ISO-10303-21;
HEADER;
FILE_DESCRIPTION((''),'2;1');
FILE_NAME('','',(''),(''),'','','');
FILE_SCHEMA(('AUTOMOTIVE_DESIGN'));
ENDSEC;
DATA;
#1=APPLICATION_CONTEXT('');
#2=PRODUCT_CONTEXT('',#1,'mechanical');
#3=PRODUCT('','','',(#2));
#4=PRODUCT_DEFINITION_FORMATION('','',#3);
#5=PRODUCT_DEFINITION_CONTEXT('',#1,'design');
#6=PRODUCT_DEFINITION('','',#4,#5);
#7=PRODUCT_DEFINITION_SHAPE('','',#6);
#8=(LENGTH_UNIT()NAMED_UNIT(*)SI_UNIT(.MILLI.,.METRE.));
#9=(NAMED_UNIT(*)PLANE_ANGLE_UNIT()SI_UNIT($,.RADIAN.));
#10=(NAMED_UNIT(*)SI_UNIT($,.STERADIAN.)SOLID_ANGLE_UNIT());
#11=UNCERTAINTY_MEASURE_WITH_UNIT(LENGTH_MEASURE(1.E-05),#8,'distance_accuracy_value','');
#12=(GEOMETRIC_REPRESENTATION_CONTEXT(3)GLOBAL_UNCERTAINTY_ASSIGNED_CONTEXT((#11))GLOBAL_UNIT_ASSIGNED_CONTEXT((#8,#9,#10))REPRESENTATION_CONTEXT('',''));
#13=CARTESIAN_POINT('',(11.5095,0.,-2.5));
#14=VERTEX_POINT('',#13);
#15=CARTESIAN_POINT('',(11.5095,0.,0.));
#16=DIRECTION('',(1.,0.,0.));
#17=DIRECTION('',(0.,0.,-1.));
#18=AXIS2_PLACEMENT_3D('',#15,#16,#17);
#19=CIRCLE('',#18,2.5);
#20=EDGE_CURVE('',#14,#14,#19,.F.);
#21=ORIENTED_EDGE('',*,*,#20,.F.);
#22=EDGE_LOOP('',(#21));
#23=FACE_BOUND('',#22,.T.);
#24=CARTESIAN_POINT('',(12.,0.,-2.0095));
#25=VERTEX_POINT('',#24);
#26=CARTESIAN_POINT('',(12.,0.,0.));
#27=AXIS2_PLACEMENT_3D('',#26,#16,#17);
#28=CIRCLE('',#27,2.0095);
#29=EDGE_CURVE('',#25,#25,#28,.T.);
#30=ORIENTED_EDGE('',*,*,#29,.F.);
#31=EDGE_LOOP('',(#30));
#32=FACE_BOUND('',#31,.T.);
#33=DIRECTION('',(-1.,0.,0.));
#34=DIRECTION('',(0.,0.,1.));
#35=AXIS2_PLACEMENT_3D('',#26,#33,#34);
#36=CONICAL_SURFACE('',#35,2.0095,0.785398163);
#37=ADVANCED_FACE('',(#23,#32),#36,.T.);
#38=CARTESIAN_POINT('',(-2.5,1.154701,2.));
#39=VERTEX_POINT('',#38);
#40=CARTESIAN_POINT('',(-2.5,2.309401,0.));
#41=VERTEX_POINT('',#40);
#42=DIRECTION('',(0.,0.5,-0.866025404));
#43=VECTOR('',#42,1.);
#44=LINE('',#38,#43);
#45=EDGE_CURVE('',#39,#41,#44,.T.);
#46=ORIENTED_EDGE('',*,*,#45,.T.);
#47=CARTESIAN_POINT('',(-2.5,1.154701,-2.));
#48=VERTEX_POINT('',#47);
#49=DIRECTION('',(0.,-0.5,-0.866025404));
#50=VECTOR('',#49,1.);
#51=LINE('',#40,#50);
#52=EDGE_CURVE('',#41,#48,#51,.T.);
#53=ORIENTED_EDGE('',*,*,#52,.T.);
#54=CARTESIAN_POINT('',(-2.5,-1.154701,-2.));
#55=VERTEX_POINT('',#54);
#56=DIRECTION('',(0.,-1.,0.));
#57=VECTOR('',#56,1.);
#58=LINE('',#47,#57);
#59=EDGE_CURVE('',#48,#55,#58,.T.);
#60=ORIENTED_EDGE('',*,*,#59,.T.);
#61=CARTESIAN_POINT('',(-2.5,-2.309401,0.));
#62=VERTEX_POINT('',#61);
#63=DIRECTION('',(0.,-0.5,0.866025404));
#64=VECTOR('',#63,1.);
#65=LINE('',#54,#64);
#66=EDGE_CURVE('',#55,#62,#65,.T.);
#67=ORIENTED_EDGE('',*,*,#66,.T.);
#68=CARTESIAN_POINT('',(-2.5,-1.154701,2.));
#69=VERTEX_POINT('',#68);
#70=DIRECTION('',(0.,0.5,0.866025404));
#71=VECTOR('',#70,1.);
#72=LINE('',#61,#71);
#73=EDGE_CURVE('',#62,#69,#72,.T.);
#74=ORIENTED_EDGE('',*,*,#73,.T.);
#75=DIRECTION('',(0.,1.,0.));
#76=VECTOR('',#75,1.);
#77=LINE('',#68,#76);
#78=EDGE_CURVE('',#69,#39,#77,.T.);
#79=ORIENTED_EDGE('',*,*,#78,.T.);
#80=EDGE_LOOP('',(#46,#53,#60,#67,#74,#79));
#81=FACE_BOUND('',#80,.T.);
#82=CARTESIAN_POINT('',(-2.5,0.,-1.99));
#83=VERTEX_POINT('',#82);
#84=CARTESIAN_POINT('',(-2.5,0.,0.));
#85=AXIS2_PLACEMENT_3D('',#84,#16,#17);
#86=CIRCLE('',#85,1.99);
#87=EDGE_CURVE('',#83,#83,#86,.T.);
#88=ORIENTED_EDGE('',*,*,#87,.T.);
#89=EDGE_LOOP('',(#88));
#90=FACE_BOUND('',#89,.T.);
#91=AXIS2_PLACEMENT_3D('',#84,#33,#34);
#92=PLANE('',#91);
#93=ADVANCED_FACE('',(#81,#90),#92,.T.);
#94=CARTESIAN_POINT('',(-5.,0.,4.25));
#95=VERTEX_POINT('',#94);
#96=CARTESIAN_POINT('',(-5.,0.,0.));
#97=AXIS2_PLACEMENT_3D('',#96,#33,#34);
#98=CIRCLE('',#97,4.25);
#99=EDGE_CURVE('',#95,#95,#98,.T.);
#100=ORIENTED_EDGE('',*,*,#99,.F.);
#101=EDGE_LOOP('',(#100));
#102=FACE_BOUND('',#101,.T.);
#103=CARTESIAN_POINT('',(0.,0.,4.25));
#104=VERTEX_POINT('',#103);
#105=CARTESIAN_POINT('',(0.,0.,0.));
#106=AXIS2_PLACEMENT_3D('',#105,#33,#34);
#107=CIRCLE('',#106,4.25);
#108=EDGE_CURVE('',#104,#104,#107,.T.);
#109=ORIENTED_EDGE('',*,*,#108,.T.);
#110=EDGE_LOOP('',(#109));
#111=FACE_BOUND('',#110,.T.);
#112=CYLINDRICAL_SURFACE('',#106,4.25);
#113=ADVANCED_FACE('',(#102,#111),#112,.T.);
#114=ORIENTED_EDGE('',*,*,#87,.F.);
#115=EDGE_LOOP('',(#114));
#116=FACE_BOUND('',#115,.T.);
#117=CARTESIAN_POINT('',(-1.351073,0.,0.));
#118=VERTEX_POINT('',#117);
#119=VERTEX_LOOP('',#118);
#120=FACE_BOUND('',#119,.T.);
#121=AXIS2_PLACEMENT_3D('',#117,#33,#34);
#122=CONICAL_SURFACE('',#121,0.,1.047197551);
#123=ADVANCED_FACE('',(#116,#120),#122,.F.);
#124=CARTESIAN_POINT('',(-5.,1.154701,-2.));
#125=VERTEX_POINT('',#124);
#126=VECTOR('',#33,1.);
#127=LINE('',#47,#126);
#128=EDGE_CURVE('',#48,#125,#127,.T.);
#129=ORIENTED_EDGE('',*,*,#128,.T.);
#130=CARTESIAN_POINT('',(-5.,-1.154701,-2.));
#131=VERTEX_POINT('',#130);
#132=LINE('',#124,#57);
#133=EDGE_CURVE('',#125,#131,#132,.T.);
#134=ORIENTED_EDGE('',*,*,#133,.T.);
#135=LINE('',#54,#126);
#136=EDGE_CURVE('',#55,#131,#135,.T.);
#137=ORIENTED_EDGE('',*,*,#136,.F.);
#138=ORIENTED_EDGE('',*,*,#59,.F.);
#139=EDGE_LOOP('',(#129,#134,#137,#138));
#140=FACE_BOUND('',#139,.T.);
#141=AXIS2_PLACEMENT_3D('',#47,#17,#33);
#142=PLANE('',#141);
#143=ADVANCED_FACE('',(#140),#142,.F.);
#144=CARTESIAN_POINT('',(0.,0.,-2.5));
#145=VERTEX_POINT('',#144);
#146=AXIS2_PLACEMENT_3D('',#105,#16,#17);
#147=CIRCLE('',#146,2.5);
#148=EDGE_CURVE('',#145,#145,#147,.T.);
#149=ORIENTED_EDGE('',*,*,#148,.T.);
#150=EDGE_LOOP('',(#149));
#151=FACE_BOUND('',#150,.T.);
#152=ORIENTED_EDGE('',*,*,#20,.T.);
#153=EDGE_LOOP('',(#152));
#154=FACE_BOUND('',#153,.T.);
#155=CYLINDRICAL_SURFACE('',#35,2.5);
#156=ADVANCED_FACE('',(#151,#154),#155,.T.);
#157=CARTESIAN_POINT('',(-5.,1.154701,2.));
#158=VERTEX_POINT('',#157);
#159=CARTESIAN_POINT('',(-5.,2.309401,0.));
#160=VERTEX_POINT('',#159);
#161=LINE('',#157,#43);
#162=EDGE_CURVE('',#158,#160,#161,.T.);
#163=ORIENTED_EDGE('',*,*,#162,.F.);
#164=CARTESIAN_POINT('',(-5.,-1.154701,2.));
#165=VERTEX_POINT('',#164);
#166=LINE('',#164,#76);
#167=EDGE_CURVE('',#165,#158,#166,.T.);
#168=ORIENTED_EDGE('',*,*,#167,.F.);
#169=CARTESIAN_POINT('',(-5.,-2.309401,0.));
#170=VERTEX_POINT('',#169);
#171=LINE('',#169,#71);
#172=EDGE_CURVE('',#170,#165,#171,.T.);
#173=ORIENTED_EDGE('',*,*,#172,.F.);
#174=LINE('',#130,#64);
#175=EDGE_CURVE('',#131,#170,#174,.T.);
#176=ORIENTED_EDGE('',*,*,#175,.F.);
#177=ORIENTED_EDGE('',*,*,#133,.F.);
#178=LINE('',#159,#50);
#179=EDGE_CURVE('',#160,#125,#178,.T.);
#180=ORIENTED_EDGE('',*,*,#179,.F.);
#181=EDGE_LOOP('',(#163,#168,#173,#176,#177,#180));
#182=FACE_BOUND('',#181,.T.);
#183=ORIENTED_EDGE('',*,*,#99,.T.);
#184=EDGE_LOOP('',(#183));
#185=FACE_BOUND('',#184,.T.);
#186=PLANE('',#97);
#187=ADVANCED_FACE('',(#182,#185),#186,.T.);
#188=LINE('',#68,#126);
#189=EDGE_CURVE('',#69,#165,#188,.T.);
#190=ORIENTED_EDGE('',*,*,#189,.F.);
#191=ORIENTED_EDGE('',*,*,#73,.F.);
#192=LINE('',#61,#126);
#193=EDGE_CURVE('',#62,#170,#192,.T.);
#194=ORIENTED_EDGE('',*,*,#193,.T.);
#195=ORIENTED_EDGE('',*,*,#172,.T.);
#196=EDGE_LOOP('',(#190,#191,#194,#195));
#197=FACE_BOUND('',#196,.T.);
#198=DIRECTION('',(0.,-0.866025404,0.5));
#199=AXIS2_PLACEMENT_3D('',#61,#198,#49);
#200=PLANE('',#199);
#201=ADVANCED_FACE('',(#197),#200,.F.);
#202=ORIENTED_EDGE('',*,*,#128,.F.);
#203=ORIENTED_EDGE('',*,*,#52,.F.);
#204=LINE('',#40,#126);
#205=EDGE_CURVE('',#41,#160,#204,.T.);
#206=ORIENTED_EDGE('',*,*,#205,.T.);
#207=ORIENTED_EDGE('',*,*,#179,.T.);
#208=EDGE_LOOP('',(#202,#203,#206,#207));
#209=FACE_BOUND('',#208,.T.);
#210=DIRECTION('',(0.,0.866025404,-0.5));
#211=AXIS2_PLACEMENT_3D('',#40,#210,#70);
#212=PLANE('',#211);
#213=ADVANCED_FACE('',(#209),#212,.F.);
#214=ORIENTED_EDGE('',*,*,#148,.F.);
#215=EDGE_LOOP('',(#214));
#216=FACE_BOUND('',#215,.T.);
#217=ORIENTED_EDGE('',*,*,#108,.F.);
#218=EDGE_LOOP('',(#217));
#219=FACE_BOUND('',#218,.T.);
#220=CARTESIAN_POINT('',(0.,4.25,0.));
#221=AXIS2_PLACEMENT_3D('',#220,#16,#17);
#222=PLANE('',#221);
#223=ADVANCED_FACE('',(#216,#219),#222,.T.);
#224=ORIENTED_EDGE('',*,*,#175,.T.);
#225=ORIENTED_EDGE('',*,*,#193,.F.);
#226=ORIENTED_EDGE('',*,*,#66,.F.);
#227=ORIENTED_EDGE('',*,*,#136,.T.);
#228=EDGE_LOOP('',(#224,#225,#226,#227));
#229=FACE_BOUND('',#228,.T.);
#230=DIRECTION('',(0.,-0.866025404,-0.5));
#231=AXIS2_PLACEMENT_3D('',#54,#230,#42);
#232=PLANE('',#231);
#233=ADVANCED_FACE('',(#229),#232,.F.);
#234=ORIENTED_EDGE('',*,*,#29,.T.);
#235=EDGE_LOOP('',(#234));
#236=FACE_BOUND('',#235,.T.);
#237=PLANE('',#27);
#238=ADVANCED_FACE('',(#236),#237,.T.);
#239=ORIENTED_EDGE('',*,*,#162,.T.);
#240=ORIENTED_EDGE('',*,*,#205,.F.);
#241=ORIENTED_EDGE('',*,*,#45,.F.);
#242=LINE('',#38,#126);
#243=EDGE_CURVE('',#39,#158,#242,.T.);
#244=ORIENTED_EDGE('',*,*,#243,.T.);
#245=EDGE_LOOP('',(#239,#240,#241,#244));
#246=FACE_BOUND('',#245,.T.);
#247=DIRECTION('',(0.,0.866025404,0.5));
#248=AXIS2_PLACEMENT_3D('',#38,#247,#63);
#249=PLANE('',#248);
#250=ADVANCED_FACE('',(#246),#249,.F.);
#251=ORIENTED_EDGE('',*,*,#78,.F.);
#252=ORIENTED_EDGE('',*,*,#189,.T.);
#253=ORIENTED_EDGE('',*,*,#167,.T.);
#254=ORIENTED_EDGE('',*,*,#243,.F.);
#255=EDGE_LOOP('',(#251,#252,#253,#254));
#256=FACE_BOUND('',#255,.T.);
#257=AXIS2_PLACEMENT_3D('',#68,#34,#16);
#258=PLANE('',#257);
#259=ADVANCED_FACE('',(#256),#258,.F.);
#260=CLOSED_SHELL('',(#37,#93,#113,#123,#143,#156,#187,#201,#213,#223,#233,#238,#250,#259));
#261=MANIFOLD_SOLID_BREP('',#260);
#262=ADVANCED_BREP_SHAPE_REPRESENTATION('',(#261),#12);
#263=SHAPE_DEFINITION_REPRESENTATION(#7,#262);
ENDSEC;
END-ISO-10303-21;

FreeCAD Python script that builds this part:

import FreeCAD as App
import Part
import Sketcher
from FreeCAD import Vector
Q = App.Units.Quantity


def edges_at(feature, points):
    """Names of the edges that pass closest to the given points."""
    edges = feature.Shape.Edges
    near = lambda p: min(range(len(edges)), key=lambda i: edges[i].distToShape(Part.Vertex(*p))[0])
    return sorted({f"Edge{near(p) + 1}" for p in points})


def add_polygon(sketch, points):
    """Adds a closed chain of lines whose ends are joined by coincident constraints."""
    first, n = sketch.GeometryCount, len(points)
    for a, b in zip(points, points[1:] + points[:1]):
        sketch.addGeometry(Part.LineSegment(App.Vector(*a, 0), App.Vector(*b, 0)), False)
    for i in range(n):
        sketch.addConstraint(Sketcher.Constraint("Coincident", first + i, 2, first + (i + 1) % n, 1))

doc = App.newDocument("Part")
body = doc.addObject("PartDesign::Body", "Body")

# Sketch on XY plane
sketch1 = body.newObject("Sketcher::SketchObject", "Sketch")
sketch1.AttachmentSupport = (doc.getObject("XY_Plane"), [""])
sketch1.MapMode = "FlatFace"
add_polygon(sketch1, [(0, 4.2), (0, 0), (-5, 0), (-5, 4.2)])  # lines 0-3
sketch1.addConstraint([
    Sketcher.Constraint("Vertical", 0),
    Sketcher.Constraint("Horizontal", 1),
    Sketcher.Constraint("Vertical", 2),
    Sketcher.Constraint("Horizontal", 3),
    Sketcher.Constraint("Coincident", 0, 2, -1, 1),
    Sketcher.Constraint("DistanceX", 1, 2, 1, 1, 5.0),
    Sketcher.Constraint("DistanceY", 0, 2, 0, 1, 4.25),
])
revolution = body.newObject("PartDesign::Revolution", "Revolution")
revolution.Profile = sketch1
revolution.ReferenceAxis = (sketch1, ["H_Axis"])
revolution.Angle = 360

# Sketch on YZ plane
sketch2 = body.newObject("Sketcher::SketchObject", "Sketch001")
sketch2.AttachmentSupport = (doc.getObject("YZ_Plane"), [""])
sketch2.MapMode = "FlatFace"
sketch2.addGeometry(Part.Circle(Vector(0, 0, 0), Vector(0, 0, 1), 2.5), False)
sketch2.addConstraint([
    Sketcher.Constraint("Coincident", 0, 3, -1, 1),
    Sketcher.Constraint("Diameter", 0, 5.0),
])
pad1 = body.newObject("PartDesign::Pad", "Pad")
pad1.Profile = sketch2
pad1.Length = 12

# Sketch on YZ plane
sketch3 = body.newObject("Sketcher::SketchObject", "Sketch002")
sketch3.AttachmentSupport = (doc.getObject("YZ_Plane"), [""])
sketch3.MapMode = "FlatFace"
sketch3.AttachmentOffset = App.Placement(Vector(0, 0, -5), App.Rotation())
add_polygon(sketch3, [(1.2, 2), (2.3, 0), (1.2, -2), (-1.2, -2), (-2.3, 0), (-1.2, 2)])  # lines 0-5
sketch3.addConstraint([
    Sketcher.Constraint("Horizontal", 2),
    Sketcher.Constraint("Horizontal", 5),
    Sketcher.Constraint("Symmetric", 0, 2, 3, 2, -1, 1),
    Sketcher.Constraint("Symmetric", 1, 2, 4, 2, -1, 1),
    Sketcher.Constraint("PointOnObject", 0, 2, -1),
    Sketcher.Constraint("Parallel", 0, 3),
    Sketcher.Constraint("Vertical", 2, 2, 4, 2),
    Sketcher.Constraint("Angle", 0, Q("-60 deg")),
    Sketcher.Constraint("DistanceY", 1, 2, -1, 1, 2.0),
    Sketcher.Constraint("DistanceX", 2, 2, 2, 1, 2.309401),
])
pocket1 = body.newObject("PartDesign::Pocket", "Pocket")
pocket1.Profile = sketch3
pocket1.Length = 2.5
pocket1.Reversed = True

# Sketch on XY plane
sketch4 = body.newObject("Sketcher::SketchObject", "Sketch003")
sketch4.AttachmentSupport = (doc.getObject("XY_Plane"), [""])
sketch4.MapMode = "FlatFace"
add_polygon(sketch4, [(-2.5, 2), (-2.5, 0), (-1.4, 0)])  # lines 0-2
sketch4.addConstraint([
    Sketcher.Constraint("Vertical", 0),
    Sketcher.Constraint("Horizontal", 1),
    Sketcher.Constraint("PointOnObject", 0, 2, -1),
    Sketcher.Constraint("Angle", 2, Q("120 deg")),
    Sketcher.Constraint("DistanceY", 0, 2, 0, 1, 1.99),
    Sketcher.Constraint("DistanceX", 0, 2, -1, 1, 2.5),
])
groove = body.newObject("PartDesign::Groove", "Groove")
groove.Profile = sketch4
groove.ReferenceAxis = (sketch4, ["H_Axis"])
groove.Angle = 360
doc.recompute()

chamfer = body.newObject("PartDesign::Chamfer", "Chamfer")
chamfer.Base = (groove, edges_at(groove, [(12, 0, 2.5)]))
chamfer.Size = 0.4905

doc.recompute()
